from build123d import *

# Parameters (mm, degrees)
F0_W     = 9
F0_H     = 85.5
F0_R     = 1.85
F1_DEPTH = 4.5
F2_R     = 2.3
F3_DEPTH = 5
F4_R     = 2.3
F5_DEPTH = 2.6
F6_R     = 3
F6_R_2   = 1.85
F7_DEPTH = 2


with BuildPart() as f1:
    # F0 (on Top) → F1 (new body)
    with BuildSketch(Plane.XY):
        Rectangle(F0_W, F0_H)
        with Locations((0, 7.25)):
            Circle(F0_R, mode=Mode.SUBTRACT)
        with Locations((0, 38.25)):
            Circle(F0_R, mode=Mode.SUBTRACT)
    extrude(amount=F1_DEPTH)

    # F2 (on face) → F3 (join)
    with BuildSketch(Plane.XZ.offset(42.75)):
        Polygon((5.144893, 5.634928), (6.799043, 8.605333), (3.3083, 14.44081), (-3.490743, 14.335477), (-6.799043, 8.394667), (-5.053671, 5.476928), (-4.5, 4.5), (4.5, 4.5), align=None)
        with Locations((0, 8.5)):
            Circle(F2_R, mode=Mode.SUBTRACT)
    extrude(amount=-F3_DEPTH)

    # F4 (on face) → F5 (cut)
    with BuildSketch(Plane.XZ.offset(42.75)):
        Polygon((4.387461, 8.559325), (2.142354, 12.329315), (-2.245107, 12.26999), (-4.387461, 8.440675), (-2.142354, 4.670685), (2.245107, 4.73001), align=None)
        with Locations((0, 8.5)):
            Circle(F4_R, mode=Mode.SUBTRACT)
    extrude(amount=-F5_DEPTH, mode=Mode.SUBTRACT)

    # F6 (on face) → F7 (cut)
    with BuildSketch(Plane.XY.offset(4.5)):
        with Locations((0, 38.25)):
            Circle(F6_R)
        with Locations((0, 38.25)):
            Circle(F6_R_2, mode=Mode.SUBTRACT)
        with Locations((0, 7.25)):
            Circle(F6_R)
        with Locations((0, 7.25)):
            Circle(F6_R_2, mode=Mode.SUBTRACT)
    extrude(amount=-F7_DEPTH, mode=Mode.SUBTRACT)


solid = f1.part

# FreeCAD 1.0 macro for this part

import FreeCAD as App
import Part
import Sketcher
from FreeCAD import Vector
Q = App.Units.Quantity

doc = App.newDocument("Part")
body = doc.addObject("PartDesign::Body", "Body")

# Sketch on XY plane
sketch1 = body.newObject("Sketcher::SketchObject", "Sketch")
sketch1.AttachmentSupport = (doc.getObject("XY_Plane"), [""])
sketch1.MapMode = "FlatFace"
sketch1.addGeometry(Part.LineSegment(Vector(-4.5, 42.75, 0), Vector(-4.5, -42.75, 0)), False)
sketch1.addGeometry(Part.LineSegment(Vector(-4.5, -42.75, 0), Vector(4.5, -42.75, 0)), False)
sketch1.addGeometry(Part.LineSegment(Vector(4.5, -42.75, 0), Vector(4.5, 42.75, 0)), False)
sketch1.addGeometry(Part.LineSegment(Vector(4.5, 42.75, 0), Vector(-4.5, 42.75, 0)), False)
sketch1.addGeometry(Part.Circle(Vector(0, 7.25, 0), Vector(0, 0, 1), 1.85), False)
sketch1.addGeometry(Part.Circle(Vector(0, 38.25, 0), Vector(0, 0, 1), 1.85), False)
sketch1.addConstraint(Sketcher.Constraint("Coincident", 0, 2, 1, 1))
sketch1.addConstraint(Sketcher.Constraint("Coincident", 1, 2, 2, 1))
sketch1.addConstraint(Sketcher.Constraint("Coincident", 2, 2, 3, 1))
sketch1.addConstraint(Sketcher.Constraint("Coincident", 3, 2, 0, 1))
sketch1.addConstraint(Sketcher.Constraint("Vertical", 0))
sketch1.addConstraint(Sketcher.Constraint("Horizontal", 1))
sketch1.addConstraint(Sketcher.Constraint("Vertical", 2))
sketch1.addConstraint(Sketcher.Constraint("Horizontal", 3))
sketch1.addConstraint(Sketcher.Constraint("Equal", 4, 5))
sketch1.addConstraint(Sketcher.Constraint("Symmetric", 0, 2, 2, 2, -1, 1))
sketch1.addConstraint(Sketcher.Constraint("PointOnObject", 4, 3, -2))
sketch1.addConstraint(Sketcher.Constraint("PointOnObject", 5, 3, -2))
sketch1.addConstraint(Sketcher.Constraint("Diameter", 4, Q("3.7 mm")))
sketch1.addConstraint(Sketcher.Constraint("DistanceX", 1, 1, 1, 2, Q("9 mm")))
sketch1.addConstraint(Sketcher.Constraint("DistanceY", 0, 2, 0, 1, Q("85.5 mm")))
sketch1.addConstraint(Sketcher.Constraint("DistanceY", 4, 3, 5, 3, Q("31 mm")))
sketch1.addConstraint(Sketcher.Constraint("DistanceY", 0, 2, 4, 3, Q("50 mm")))
pad1 = body.newObject("PartDesign::Pad", "Pad")
pad1.Profile = sketch1
pad1.Length = 4.5

# Sketch on XZ plane
sketch2 = body.newObject("Sketcher::SketchObject", "Sketch001")
sketch2.AttachmentSupport = (doc.getObject("XZ_Plane"), [""])
sketch2.MapMode = "FlatFace"
sketch2.AttachmentOffset = App.Placement(Vector(0, 0, 42.75), App.Rotation())
sketch2.addGeometry(Part.LineSegment(Vector(5.144893, 5.634928, 0), Vector(6.799043, 8.605333, 0)), False)
sketch2.addGeometry(Part.LineSegment(Vector(6.799043, 8.605333, 0), Vector(3.3083, 14.44081, 0)), False)
sketch2.addGeometry(Part.LineSegment(Vector(3.3083, 14.44081, 0), Vector(-3.490743, 14.335477, 0)), False)
sketch2.addGeometry(Part.LineSegment(Vector(-3.490743, 14.335477, 0), Vector(-6.799043, 8.394667, 0)), False)
sketch2.addGeometry(Part.LineSegment(Vector(-6.799043, 8.394667, 0), Vector(-5.053671, 5.476928, 0)), False)
sketch2.addGeometry(Part.LineSegment(Vector(-5.053671, 5.476928, 0), Vector(-4.5, 4.5, 0)), False)
sketch2.addGeometry(Part.LineSegment(Vector(-4.5, 4.5, 0), Vector(4.5, 4.5, 0)), False)
sketch2.addGeometry(Part.LineSegment(Vector(4.5, 4.5, 0), Vector(5.144893, 5.634928, 0)), False)
sketch2.addGeometry(Part.Circle(Vector(0, 8.5, 0), Vector(0, 0, 1), 2.3), False)
sketch2.addConstraint(Sketcher.Constraint("Coincident", 0, 2, 1, 1))
sketch2.addConstraint(Sketcher.Constraint("Coincident", 1, 2, 2, 1))
sketch2.addConstraint(Sketcher.Constraint("Coincident", 2, 2, 3, 1))
sketch2.addConstraint(Sketcher.Constraint("Coincident", 3, 2, 4, 1))
sketch2.addConstraint(Sketcher.Constraint("Coincident", 4, 2, 5, 1))
sketch2.addConstraint(Sketcher.Constraint("Coincident", 5, 2, 6, 1))
sketch2.addConstraint(Sketcher.Constraint("Coincident", 6, 2, 7, 1))
sketch2.addConstraint(Sketcher.Constraint("Coincident", 7, 2, 0, 1))
sketch2.addConstraint(Sketcher.Constraint("Horizontal", 6))
sketch2.addConstraint(Sketcher.Constraint("PointOnObject", 8, 3, -2))
sketch2.addConstraint(Sketcher.Constraint("Diameter", 8, Q("4.6 mm")))
sketch2.addConstraint(Sketcher.Constraint("DistanceX", 6, 1, 6, 2, Q("9 mm")))
sketch2.addConstraint(Sketcher.Constraint("DistanceY", 5, 2, 8, 3, Q("4 mm")))
sketch2.addConstraint(Sketcher.Constraint("DistanceY", -1, 1, 8, 3, Q("8.5 mm")))
sketch2.addConstraint(Sketcher.Constraint("DistanceX", 5, 2, -1, 1, Q("4.5 mm")))
sketch2.addConstraint(Sketcher.Constraint("DistanceX", -1, 1, 1, 2, Q("3.3083 mm")))
sketch2.addConstraint(Sketcher.Constraint("DistanceX", 3, 2, 2, 2, Q("3.3083 mm")))
sketch2.addConstraint(Sketcher.Constraint("Distance", 0, Q("3.399929 mm")))
sketch2.addConstraint(Sketcher.Constraint("Distance", 1, Q("6.799859 mm")))
sketch2.addConstraint(Sketcher.Constraint("Distance", 2, Q("6.799859 mm")))
sketch2.addConstraint(Sketcher.Constraint("Distance", 3, Q("6.799858 mm")))
sketch2.addConstraint(Sketcher.Constraint("Distance", 4, Q("3.39993 mm")))
sketch2.addConstraint(Sketcher.Constraint("DistanceY", -1, 1, 1, 2, Q("14.44081 mm")))
sketch2.addConstraint(Sketcher.Constraint("DistanceX", 4, 2, -1, 1, Q("5.053671 mm")))
sketch2.addConstraint(Sketcher.Constraint("DistanceY", -1, 1, 7, 2, Q("5.634928 mm")))
sketch2.addConstraint(Sketcher.Constraint("DistanceY", 4, 2, 3, 2, Q("2.917739 mm")))
sketch2.addConstraint(Sketcher.Constraint("DistanceX", 7, 2, 0, 2, Q("1.65415 mm")))
pad2 = body.newObject("PartDesign::Pad", "Pad001")
pad2.Profile = sketch2
pad2.Length = 5
pad2.Reversed = True

# Sketch on XZ plane
sketch3 = body.newObject("Sketcher::SketchObject", "Sketch002")
sketch3.AttachmentSupport = (doc.getObject("XZ_Plane"), [""])
sketch3.MapMode = "FlatFace"
sketch3.AttachmentOffset = App.Placement(Vector(0, 0, 42.75), App.Rotation())
sketch3.addGeometry(Part.LineSegment(Vector(4.387461, 8.559325, 0), Vector(2.142354, 12.329315, 0)), False)
sketch3.addGeometry(Part.LineSegment(Vector(2.142354, 12.329315, 0), Vector(-2.245107, 12.26999, 0)), False)
sketch3.addGeometry(Part.LineSegment(Vector(-2.245107, 12.26999, 0), Vector(-4.387461, 8.440675, 0)), False)
sketch3.addGeometry(Part.LineSegment(Vector(-4.387461, 8.440675, 0), Vector(-2.142354, 4.670685, 0)), False)
sketch3.addGeometry(Part.LineSegment(Vector(-2.142354, 4.670685, 0), Vector(2.245107, 4.73001, 0)), False)
sketch3.addGeometry(Part.LineSegment(Vector(2.245107, 4.73001, 0), Vector(4.387461, 8.559325, 0)), False)
sketch3.addGeometry(Part.Circle(Vector(0, 8.5, 0), Vector(0, 0, 1), 2.3), False)
sketch3.addConstraint(Sketcher.Constraint("Coincident", 0, 2, 1, 1))
sketch3.addConstraint(Sketcher.Constraint("Coincident", 1, 2, 2, 1))
sketch3.addConstraint(Sketcher.Constraint("Coincident", 2, 2, 3, 1))
sketch3.addConstraint(Sketcher.Constraint("Coincident", 3, 2, 4, 1))
sketch3.addConstraint(Sketcher.Constraint("Coincident", 4, 2, 5, 1))
sketch3.addConstraint(Sketcher.Constraint("Coincident", 5, 2, 0, 1))
sketch3.addConstraint(Sketcher.Constraint("PointOnObject", 6, 3, -2))
sketch3.addConstraint(Sketcher.Constraint("Parallel", 0, 3))
sketch3.addConstraint(Sketcher.Constraint("Parallel", 1, 4))
sketch3.addConstraint(Sketcher.Constraint("Parallel", 2, 5))
sketch3.addConstraint(Sketcher.Constraint("Equal", 0, 1))
sketch3.addConstraint(Sketcher.Constraint("Equal", 1, 2))
sketch3.addConstraint(Sketcher.Constraint("Equal", 2, 3))
sketch3.addConstraint(Sketcher.Constraint("Diameter", 6, Q("4.6 mm")))
sketch3.addConstraint(Sketcher.Constraint("DistanceY", -1, 1, 6, 3, Q("8.5 mm")))
sketch3.addConstraint(Sketcher.Constraint("Distance", 0, Q("4.387862 mm")))
sketch3.addConstraint(Sketcher.Constraint("DistanceY", -1, 1, 1, 2, Q("12.26999 mm")))
sketch3.addConstraint(Sketcher.Constraint("DistanceX", 2, 2, -1, 1, Q("4.387461 mm")))
sketch3.addConstraint(Sketcher.Constraint("DistanceY", -1, 1, 4, 2, Q("4.73001 mm")))
sketch3.addConstraint(Sketcher.Constraint("DistanceX", -1, 1, 5, 2, Q("4.387461 mm")))
sketch3.addConstraint(Sketcher.Constraint("DistanceY", 2, 2, 0, 2, Q("3.88864 mm")))
pocket1 = body.newObject("PartDesign::Pocket", "Pocket")
pocket1.Profile = sketch3
pocket1.Length = 2.6

# Sketch on XY plane
sketch4 = body.newObject("Sketcher::SketchObject", "Sketch003")
sketch4.AttachmentSupport = (doc.getObject("XY_Plane"), [""])
sketch4.MapMode = "FlatFace"
sketch4.AttachmentOffset = App.Placement(Vector(0, 0, 4.5), App.Rotation())
sketch4.addGeometry(Part.Circle(Vector(0, 38.25, 0), Vector(0, 0, 1), 3), False)
sketch4.addGeometry(Part.Circle(Vector(0, 38.25, 0), Vector(0, 0, 1), 1.85), False)
sketch4.addGeometry(Part.Circle(Vector(0, 7.25, 0), Vector(0, 0, 1), 3), False)
sketch4.addGeometry(Part.Circle(Vector(0, 7.25, 0), Vector(0, 0, 1), 1.85), False)
sketch4.addConstraint(Sketcher.Constraint("Coincident", 1, 3, 0, 3))
sketch4.addConstraint(Sketcher.Constraint("Coincident", 3, 3, 2, 3))
sketch4.addConstraint(Sketcher.Constraint("Equal", 0, 2))
sketch4.addConstraint(Sketcher.Constraint("Equal", 1, 3))
sketch4.addConstraint(Sketcher.Constraint("PointOnObject", 0, 3, -2))
sketch4.addConstraint(Sketcher.Constraint("PointOnObject", 2, 3, -2))
sketch4.addConstraint(Sketcher.Constraint("Diameter", 0, Q("6 mm")))
sketch4.addConstraint(Sketcher.Constraint("Diameter", 1, Q("3.7 mm")))
sketch4.addConstraint(Sketcher.Constraint("DistanceY", 2, 3, 0, 3, Q("31 mm")))
sketch4.addConstraint(Sketcher.Constraint("DistanceY", -1, 1, 0, 3, Q("38.25 mm")))
pocket2 = body.newObject("PartDesign::Pocket", "Pocket001")
pocket2.Profile = sketch4
pocket2.Length = 2

doc.recompute()
